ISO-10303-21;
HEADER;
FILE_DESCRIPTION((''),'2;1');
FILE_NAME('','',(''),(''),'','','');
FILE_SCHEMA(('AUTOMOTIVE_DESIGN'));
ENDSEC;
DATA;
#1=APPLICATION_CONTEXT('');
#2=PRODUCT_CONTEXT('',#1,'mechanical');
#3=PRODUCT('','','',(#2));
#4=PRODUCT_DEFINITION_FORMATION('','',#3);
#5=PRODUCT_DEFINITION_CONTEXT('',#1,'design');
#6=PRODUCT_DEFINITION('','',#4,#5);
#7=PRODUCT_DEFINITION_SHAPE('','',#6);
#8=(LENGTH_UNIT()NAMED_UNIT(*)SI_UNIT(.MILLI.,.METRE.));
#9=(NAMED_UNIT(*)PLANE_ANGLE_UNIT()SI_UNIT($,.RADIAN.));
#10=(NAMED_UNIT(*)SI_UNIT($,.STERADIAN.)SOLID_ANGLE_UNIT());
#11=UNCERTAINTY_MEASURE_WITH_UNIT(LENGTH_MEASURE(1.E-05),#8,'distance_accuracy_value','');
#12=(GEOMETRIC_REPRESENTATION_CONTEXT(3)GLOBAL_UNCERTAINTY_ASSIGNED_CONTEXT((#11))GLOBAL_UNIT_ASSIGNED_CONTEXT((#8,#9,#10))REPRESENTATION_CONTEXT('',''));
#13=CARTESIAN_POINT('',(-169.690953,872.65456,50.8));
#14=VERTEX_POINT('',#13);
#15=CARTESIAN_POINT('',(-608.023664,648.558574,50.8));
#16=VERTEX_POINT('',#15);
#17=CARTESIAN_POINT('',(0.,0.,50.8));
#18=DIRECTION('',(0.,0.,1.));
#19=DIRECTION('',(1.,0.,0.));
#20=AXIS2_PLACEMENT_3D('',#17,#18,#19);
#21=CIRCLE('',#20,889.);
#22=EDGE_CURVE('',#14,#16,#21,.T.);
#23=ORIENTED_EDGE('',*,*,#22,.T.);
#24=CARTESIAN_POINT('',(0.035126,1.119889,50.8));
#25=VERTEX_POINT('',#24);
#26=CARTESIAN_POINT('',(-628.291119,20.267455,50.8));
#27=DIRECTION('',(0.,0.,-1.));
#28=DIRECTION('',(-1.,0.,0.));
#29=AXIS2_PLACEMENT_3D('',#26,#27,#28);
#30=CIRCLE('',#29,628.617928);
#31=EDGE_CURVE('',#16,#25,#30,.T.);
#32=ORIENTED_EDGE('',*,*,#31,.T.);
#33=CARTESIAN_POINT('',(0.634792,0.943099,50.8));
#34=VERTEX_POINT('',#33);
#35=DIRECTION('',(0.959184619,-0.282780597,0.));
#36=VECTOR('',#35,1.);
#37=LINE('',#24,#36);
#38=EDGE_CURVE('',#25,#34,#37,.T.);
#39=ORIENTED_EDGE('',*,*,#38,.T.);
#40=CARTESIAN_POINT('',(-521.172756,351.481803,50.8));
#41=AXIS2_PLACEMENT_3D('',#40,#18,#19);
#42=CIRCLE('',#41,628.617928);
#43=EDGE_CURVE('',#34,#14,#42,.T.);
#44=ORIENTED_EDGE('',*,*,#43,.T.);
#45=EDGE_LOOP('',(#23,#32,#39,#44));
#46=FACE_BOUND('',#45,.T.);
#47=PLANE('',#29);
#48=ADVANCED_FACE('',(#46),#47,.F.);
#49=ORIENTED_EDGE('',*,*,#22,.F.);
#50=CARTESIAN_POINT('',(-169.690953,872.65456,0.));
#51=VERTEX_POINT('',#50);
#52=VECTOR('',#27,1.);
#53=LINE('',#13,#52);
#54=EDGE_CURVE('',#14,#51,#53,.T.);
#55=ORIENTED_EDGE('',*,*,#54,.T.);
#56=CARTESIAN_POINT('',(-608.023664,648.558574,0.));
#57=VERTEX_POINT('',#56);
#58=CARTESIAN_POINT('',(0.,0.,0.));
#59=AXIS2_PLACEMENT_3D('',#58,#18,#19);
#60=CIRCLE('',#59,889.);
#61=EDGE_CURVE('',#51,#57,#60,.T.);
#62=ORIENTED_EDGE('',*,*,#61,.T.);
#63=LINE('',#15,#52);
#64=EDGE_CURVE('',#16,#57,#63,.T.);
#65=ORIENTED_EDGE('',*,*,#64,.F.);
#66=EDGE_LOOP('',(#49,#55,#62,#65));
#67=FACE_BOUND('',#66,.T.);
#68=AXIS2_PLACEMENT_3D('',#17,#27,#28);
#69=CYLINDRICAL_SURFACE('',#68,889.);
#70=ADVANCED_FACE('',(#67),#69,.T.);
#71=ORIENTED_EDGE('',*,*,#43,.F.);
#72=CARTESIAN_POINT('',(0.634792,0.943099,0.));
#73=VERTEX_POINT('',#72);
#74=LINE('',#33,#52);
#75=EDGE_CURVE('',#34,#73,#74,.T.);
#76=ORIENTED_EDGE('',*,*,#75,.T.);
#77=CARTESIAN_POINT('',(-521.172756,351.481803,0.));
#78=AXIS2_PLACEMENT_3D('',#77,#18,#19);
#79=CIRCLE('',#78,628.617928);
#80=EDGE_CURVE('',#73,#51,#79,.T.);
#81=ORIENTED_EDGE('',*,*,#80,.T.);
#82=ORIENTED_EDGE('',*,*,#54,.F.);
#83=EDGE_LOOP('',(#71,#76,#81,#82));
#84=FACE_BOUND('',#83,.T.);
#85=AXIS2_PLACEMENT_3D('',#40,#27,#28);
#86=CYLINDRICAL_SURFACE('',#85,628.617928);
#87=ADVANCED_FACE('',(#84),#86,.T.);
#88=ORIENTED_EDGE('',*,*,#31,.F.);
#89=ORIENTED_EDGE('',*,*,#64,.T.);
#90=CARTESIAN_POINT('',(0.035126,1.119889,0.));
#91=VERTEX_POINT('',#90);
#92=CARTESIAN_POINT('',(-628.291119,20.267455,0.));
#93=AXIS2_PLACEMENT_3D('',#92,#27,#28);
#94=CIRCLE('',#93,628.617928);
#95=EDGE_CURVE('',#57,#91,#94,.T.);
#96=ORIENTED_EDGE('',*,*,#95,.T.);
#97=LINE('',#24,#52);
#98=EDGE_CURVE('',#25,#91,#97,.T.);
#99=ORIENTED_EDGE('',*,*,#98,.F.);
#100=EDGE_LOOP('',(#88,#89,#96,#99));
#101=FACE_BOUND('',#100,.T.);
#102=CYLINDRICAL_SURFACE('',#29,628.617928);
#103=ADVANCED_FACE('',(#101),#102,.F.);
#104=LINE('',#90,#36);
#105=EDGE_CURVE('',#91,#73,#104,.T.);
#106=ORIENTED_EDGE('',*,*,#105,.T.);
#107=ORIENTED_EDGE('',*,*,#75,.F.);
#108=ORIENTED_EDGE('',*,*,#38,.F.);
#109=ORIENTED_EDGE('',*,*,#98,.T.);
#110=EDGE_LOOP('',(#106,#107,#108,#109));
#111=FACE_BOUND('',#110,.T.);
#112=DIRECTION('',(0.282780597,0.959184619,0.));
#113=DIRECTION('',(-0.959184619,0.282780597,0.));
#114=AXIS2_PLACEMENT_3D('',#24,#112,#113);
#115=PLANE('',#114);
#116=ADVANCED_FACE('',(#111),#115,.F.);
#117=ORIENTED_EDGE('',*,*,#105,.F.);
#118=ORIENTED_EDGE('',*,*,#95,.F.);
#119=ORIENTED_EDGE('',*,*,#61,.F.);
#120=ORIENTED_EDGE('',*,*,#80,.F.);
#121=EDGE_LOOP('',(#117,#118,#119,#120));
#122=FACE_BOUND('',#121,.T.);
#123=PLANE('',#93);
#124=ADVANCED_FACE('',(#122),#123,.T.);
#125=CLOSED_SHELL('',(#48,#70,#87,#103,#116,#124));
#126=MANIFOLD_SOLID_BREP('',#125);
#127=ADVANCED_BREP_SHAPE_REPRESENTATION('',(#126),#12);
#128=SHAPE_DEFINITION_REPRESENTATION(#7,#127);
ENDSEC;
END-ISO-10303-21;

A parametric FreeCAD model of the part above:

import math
import FreeCAD as App
import Part
import Sketcher

V = App.Vector
Q = App.Units.Quantity

doc = App.newDocument("Part")
body = doc.addObject("PartDesign::Body", "Body")

# Sketch on XY plane
sketch1 = doc.addObject("Sketcher::SketchObject", "Sketch")
body.addObject(sketch1)
sketch1.AttachmentSupport = (doc.XY_Plane, [""])
sketch1.MapMode = "FlatFace"
sketch1.addGeometry([
    Part.LineSegment(V(0.035126, 1.119889, 0), V(0.634792, 0.943099, 0)),
    Part.ArcOfCircle(Part.Circle(V(-521.172756, 351.481803, 0), V(0, 0, 1), 628.617928), math.radians(-33.892328), math.radians(56.004055)),
    Part.ArcOfCircle(Part.Circle(V(0, 0, 0), V(0, 0, 1), 889), math.radians(101.004055), math.radians(133.15239)),
    Part.ArcOfCircle(Part.Circle(V(-628.291119, 20.267455, 0), V(0, 0, 1), 628.617928), math.radians(-1.745487), math.radians(88.15239)),
], False)
sketch1.addConstraint([
    Sketcher.Constraint("Coincident", 0, 2, 1, 1),
    Sketcher.Constraint("Coincident", 1, 2, 2, 1),
    Sketcher.Constraint("Coincident", 2, 2, 3, 2),
    Sketcher.Constraint("Coincident", 3, 1, 0, 1),
    Sketcher.Constraint("Coincident", 2, 3, -1, 1),
    Sketcher.Constraint("Equal", 1, 3),
    Sketcher.Constraint("Radius", 2, Q("35 in")),
    Sketcher.Constraint("Radius", 1, 628.617928),
    Sketcher.Constraint("DistanceY", -1, 1, 0, 2, 0.943099),
    Sketcher.Constraint("DistanceX", 3, 3, -1, 1, 628.291119),
    Sketcher.Constraint("DistanceX", -1, 1, 0, 2, 0.634792),
    Sketcher.Constraint("DistanceY", 1, 3, 2, 2, 297.076771),
    Sketcher.Constraint("DistanceX", 1, 2, 3, 1, 169.726079),
    Sketcher.Constraint("Distance", 0, 0.625182),
])
pad1 = doc.addObject("PartDesign::Pad", "Pad")
body.addObject(pad1)
pad1.Profile = sketch1
pad1.Length = Q("2 in")

doc.recompute()
